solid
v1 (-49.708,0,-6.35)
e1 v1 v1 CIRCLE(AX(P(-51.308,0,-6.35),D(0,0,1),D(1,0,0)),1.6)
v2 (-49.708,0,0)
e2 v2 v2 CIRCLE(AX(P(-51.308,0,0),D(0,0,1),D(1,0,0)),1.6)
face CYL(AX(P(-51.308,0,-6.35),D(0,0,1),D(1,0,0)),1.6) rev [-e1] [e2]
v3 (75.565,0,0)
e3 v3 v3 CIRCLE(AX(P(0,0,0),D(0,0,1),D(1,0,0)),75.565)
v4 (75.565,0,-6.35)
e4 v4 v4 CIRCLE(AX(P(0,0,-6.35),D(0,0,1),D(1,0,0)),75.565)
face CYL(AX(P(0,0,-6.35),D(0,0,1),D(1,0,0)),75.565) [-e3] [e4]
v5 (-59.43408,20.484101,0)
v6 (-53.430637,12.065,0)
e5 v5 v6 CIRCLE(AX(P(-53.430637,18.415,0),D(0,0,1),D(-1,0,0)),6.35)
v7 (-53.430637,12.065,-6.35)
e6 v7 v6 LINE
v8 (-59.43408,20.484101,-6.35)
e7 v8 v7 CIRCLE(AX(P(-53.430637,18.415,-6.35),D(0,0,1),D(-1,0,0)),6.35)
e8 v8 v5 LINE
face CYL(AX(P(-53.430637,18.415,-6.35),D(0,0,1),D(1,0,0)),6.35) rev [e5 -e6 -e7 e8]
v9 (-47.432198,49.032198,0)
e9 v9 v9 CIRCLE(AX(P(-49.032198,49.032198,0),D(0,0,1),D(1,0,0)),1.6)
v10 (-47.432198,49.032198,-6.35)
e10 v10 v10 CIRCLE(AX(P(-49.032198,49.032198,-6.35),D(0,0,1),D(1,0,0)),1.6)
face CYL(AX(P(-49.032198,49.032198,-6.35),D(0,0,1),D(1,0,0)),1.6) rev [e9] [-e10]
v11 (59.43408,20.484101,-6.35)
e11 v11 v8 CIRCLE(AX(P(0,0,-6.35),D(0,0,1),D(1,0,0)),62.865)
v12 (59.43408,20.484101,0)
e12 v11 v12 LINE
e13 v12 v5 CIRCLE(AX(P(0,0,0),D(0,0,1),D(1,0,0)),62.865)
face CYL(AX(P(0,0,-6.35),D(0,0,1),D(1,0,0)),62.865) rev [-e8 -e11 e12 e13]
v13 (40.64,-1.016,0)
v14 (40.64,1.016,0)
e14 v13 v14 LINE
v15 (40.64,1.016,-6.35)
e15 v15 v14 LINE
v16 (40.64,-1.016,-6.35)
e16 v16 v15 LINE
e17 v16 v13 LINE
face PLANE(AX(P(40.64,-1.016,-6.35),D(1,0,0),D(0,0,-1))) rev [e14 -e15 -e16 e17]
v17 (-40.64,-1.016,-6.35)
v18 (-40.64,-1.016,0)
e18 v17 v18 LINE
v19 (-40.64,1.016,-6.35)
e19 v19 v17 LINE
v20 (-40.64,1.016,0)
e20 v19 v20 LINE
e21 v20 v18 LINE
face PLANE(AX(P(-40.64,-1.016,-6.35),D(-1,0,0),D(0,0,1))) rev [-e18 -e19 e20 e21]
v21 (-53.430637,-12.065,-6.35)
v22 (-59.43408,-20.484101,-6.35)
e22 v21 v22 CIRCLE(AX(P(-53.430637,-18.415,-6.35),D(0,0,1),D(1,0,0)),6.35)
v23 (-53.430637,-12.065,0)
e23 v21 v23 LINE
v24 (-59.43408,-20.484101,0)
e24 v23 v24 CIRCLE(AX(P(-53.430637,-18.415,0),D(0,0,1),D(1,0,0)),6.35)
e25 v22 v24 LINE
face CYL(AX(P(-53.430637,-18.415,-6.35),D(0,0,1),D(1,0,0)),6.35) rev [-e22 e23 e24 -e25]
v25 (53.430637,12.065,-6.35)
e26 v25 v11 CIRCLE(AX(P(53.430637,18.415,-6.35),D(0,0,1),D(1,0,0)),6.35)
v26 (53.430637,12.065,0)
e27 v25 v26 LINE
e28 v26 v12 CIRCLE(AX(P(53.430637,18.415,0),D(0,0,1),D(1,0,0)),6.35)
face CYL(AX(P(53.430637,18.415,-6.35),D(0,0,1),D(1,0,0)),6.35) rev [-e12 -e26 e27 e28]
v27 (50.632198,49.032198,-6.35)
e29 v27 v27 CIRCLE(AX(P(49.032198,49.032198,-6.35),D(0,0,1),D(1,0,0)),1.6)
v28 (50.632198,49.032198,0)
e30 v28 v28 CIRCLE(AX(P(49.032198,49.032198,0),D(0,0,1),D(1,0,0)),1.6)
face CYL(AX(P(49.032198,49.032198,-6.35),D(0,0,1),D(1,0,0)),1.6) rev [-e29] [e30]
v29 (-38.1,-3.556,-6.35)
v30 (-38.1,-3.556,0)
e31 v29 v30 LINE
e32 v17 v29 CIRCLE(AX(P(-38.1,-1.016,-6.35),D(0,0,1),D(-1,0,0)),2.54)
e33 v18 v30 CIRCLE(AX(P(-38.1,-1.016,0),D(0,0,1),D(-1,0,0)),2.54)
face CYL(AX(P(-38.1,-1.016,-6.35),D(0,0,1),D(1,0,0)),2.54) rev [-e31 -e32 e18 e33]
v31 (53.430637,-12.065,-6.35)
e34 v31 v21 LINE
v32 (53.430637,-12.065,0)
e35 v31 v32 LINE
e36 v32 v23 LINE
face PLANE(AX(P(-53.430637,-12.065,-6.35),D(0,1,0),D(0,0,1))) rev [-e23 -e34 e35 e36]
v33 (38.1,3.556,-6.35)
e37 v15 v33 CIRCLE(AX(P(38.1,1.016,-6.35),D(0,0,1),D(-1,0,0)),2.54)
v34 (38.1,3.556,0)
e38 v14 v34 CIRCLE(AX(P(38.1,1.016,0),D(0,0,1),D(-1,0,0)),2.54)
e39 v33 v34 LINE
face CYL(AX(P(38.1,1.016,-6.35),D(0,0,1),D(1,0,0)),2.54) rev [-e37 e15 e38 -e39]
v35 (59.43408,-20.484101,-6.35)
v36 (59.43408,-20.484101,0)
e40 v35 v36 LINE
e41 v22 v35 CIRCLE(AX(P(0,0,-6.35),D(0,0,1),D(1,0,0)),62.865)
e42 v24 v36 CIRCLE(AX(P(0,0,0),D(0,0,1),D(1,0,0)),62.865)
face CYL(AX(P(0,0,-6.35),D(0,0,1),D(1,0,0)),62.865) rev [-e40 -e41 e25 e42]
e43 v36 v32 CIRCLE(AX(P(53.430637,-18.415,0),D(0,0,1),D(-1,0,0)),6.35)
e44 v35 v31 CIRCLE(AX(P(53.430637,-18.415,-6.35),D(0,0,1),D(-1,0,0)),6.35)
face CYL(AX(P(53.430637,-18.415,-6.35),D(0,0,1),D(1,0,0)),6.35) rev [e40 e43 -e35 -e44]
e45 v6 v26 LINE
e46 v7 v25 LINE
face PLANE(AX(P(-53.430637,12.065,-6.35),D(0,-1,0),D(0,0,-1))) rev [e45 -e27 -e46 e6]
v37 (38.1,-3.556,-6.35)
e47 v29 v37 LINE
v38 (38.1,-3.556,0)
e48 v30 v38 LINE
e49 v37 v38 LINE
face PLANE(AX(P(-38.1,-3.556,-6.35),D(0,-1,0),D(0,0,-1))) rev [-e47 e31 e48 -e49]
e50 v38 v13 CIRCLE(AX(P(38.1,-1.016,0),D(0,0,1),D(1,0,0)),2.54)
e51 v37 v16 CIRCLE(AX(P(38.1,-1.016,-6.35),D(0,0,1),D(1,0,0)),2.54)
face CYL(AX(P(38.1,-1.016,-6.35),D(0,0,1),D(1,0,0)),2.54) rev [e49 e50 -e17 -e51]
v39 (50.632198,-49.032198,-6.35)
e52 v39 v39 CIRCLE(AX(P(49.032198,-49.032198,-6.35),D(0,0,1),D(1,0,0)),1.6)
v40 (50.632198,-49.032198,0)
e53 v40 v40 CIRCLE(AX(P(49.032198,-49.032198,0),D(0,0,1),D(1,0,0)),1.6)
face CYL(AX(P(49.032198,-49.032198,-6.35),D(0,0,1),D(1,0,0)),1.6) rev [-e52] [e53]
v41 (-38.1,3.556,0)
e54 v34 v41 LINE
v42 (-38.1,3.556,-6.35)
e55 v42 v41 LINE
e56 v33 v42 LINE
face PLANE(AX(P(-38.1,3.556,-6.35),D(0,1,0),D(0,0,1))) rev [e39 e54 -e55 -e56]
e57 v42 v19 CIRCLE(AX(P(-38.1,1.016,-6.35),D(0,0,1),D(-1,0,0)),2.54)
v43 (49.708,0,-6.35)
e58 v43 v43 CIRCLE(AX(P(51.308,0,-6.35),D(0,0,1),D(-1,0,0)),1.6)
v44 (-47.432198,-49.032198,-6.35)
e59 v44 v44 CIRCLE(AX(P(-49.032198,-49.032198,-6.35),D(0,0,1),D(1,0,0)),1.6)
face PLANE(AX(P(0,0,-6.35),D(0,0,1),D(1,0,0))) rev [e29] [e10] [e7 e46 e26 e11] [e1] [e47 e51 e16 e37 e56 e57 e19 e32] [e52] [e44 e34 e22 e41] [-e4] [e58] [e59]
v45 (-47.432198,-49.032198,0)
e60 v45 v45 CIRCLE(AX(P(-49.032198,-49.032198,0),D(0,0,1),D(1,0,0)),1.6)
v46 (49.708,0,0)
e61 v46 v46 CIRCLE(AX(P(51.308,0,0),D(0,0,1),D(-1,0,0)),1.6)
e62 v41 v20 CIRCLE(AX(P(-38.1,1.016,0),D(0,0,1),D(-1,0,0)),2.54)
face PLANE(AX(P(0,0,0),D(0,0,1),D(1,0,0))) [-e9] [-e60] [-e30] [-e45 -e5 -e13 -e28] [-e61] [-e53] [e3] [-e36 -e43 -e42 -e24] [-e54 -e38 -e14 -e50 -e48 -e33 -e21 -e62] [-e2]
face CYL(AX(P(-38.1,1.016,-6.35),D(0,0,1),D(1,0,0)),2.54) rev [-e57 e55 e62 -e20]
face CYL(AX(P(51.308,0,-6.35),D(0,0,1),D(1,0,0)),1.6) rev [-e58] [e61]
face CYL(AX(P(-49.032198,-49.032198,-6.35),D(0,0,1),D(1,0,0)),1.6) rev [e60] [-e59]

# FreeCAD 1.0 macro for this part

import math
import FreeCAD as App
import Part
import Sketcher
from FreeCAD import Vector
Q = App.Units.Quantity

doc = App.newDocument("Part")
body = doc.addObject("PartDesign::Body", "Body")

sketch1 = body.newObject("Sketcher::SketchObject", "Sketch")
sketch1.AttachmentSupport = (doc.getObject("XY_Plane"), [""])
sketch1.MapMode = "FlatFace"
sketch1.addGeometry([
    Part.Circle(Vector(0, 0, 0), Vector(0, 0, 1), 75.6),
    Part.Circle(Vector(-49, -49, 0), Vector(0, 0, 1), 1.6),
    Part.ArcOfCircle(Part.Circle(Vector(-53.4, -18.4, 0), Vector(0, 0, 1), 6.3), math.radians(90), math.radians(199)),
    Part.LineSegment(Vector(-53.4, -12.1, 0), Vector(53.4, -12.1, 0)),
    Part.ArcOfCircle(Part.Circle(Vector(53.4, -18.4, 0), Vector(0, 0, 1), 6.3), math.radians(-19), math.radians(90)),
    Part.ArcOfCircle(Part.Circle(Vector(0, 0, 0), Vector(0, 0, 1), 62.9), math.radians(-161), math.radians(-19)),
    Part.Circle(Vector(49, -49, 0), Vector(0, 0, 1), 1.6),
    Part.Circle(Vector(-51.3, 0, 0), Vector(0, 0, 1), 1.6),
    Part.Circle(Vector(-49, 49, 0), Vector(0, 0, 1), 1.6),
    Part.LineSegment(Vector(38.1, -3.6, 0), Vector(-38.1, -3.6, 0)),
    Part.ArcOfCircle(Part.Circle(Vector(-38.1, -1, 0), Vector(0, 0, 1), 2.5), math.radians(-180), math.radians(-90)),
    Part.LineSegment(Vector(-40.6, -1, 0), Vector(-40.6, 1, 0)),
    Part.ArcOfCircle(Part.Circle(Vector(-38.1, 1, 0), Vector(0, 0, 1), 2.5), math.radians(90), math.radians(180)),
    Part.LineSegment(Vector(-38.1, 3.6, 0), Vector(38.1, 3.6, 0)),
    Part.ArcOfCircle(Part.Circle(Vector(38.1, 1, 0), Vector(0, 0, 1), 2.5), math.radians(0), math.radians(90)),
    Part.LineSegment(Vector(40.6, 1, 0), Vector(40.6, -1, 0)),
    Part.ArcOfCircle(Part.Circle(Vector(38.1, -1, 0), Vector(0, 0, 1), 2.5), math.radians(-90), math.radians(0)),
    Part.Circle(Vector(51.3, 0, 0), Vector(0, 0, 1), 1.6),
    Part.LineSegment(Vector(53.4, 12.1, 0), Vector(-53.4, 12.1, 0)),
    Part.ArcOfCircle(Part.Circle(Vector(-53.4, 18.4, 0), Vector(0, 0, 1), 6.3), math.radians(161), math.radians(270)),
    Part.ArcOfCircle(Part.Circle(Vector(0, 0, 0), Vector(0, 0, 1), 62.9), math.radians(19), math.radians(161)),
    Part.ArcOfCircle(Part.Circle(Vector(53.4, 18.4, 0), Vector(0, 0, 1), 6.3), math.radians(-90), math.radians(19)),
    Part.Circle(Vector(49, 49, 0), Vector(0, 0, 1), 1.6),
], False)
sketch1.addConstraint([
    Sketcher.Constraint("Tangent", 2, 1, 3, 1),
    Sketcher.Constraint("Tangent", 3, 2, 4, 2),
    Sketcher.Constraint("Tangent", 4, 1, 5, 2),
    Sketcher.Constraint("Tangent", 5, 1, 2, 2),
    Sketcher.Constraint("Tangent", 9, 2, 10, 2),
    Sketcher.Constraint("Tangent", 10, 1, 11, 1),
    Sketcher.Constraint("Tangent", 11, 2, 12, 2),
    Sketcher.Constraint("Tangent", 12, 1, 13, 1),
    Sketcher.Constraint("Tangent", 13, 2, 14, 2),
    Sketcher.Constraint("Tangent", 14, 1, 15, 1),
    Sketcher.Constraint("Tangent", 15, 2, 16, 2),
    Sketcher.Constraint("Tangent", 16, 1, 9, 1),
    Sketcher.Constraint("Tangent", 18, 2, 19, 2),
    Sketcher.Constraint("Tangent", 19, 1, 20, 2),
    Sketcher.Constraint("Tangent", 20, 1, 21, 2),
    Sketcher.Constraint("Tangent", 21, 1, 18, 1),
    Sketcher.Constraint("Horizontal", 3),
    Sketcher.Constraint("Horizontal", 9),
    Sketcher.Constraint("Vertical", 11),
    Sketcher.Constraint("Horizontal", 13),
    Sketcher.Constraint("Vertical", 15),
    Sketcher.Constraint("Horizontal", 18),
    Sketcher.Constraint("Coincident", 0, 3, -1, 1),
    Sketcher.Constraint("Coincident", 5, 3, -1, 1),
    Sketcher.Constraint("Coincident", 20, 3, -1, 1),
    Sketcher.Constraint("Equal", 2, 4),
    Sketcher.Constraint("Equal", 1, 6),
    Sketcher.Constraint("Equal", 6, 7),
    Sketcher.Constraint("Equal", 7, 8),
    Sketcher.Constraint("Equal", 10, 12),
    Sketcher.Constraint("Equal", 12, 14),
    Sketcher.Constraint("Equal", 14, 16),
    Sketcher.Constraint("Equal", 8, 17),
    Sketcher.Constraint("Equal", 4, 19),
    Sketcher.Constraint("Equal", 5, 20),
    Sketcher.Constraint("Equal", 19, 21),
    Sketcher.Constraint("Equal", 17, 22),
    Sketcher.Constraint("Symmetric", 6, 3, 8, 3, -1, 1),
    Sketcher.Constraint("Symmetric", 10, 3, 14, 3, -1, 1),
    Sketcher.Constraint("Symmetric", 7, 3, 17, 3, -1, 1),
    Sketcher.Constraint("Symmetric", 1, 3, 22, 3, -1, 1),
    Sketcher.Constraint("Symmetric", 1, 3, 6, 3, -2),
    Sketcher.Constraint("PointOnObject", 7, 3, -1),
    Sketcher.Constraint("Vertical", 2, 3, 19, 3),
    Sketcher.Constraint("Radius", 10, Q("0.1 in")),
    Sketcher.Constraint("Diameter", 0, Q("5.95 in")),
    Sketcher.Constraint("DistanceX", 9, 2, 9, 1, Q("3 in")),
    Sketcher.Constraint("Radius", 2, Q("0.25 in")),
    Sketcher.Constraint("Radius", 5, Q("2.475 in")),
    Sketcher.Constraint("DistanceY", 11, 1, 11, 2, Q("0.08 in")),
    Sketcher.Constraint("DistanceY", 2, 1, 19, 3, Q("1.2 in")),
    Sketcher.Constraint("Diameter", 1, 3.2),
    Sketcher.Constraint("DistanceX", 7, 3, -1, 1, Q("2.02 in")),
    Sketcher.Constraint("DistanceX", 1, 3, -1, 1, 49.032198),
    Sketcher.Constraint("DistanceY", 1, 3, -1, 1, 49.032198),
])
pad1 = body.newObject("PartDesign::Pad", "Pad")
pad1.Profile = sketch1
pad1.Length = Q("0.25 in")
pad1.Reversed = True

doc.recompute()
